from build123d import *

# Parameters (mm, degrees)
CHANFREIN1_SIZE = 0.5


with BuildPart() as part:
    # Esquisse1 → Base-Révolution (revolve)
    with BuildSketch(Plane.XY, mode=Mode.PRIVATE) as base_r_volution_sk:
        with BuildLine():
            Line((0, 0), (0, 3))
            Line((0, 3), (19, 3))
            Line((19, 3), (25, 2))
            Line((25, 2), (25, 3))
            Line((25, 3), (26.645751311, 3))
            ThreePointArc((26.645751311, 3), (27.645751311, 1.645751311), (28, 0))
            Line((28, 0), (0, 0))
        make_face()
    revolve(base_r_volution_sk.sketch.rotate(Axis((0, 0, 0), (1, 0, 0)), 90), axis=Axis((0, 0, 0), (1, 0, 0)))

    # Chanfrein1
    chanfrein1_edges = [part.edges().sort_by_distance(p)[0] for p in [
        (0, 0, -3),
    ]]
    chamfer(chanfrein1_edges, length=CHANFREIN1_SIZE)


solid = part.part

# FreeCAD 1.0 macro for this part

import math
import FreeCAD as App
import Part
import Sketcher
from FreeCAD import Vector
Q = App.Units.Quantity


def edges_at(feature, points):
    """Names of the edges that pass closest to the given points."""
    edges = feature.Shape.Edges
    near = lambda p: min(range(len(edges)), key=lambda i: edges[i].distToShape(Part.Vertex(*p))[0])
    return sorted({f"Edge{near(p) + 1}" for p in points})

doc = App.newDocument("Part")
body = doc.addObject("PartDesign::Body", "Body")

# Sketch on XY plane
sketch1 = body.newObject("Sketcher::SketchObject", "Sketch")
sketch1.AttachmentSupport = (doc.getObject("XY_Plane"), [""])
sketch1.MapMode = "FlatFace"
sketch1.addGeometry([
    Part.LineSegment(Vector(0, 3, 0), Vector(0, 0, 0)),  # 0
    Part.LineSegment(Vector(0, 0, 0), Vector(28, 0, 0)),  # 1
    Part.ArcOfCircle(Part.Circle(Vector(24, 0, 0), Vector(0, 0, 1), 4), math.radians(0), math.radians(48.590378)),  # 2
    Part.LineSegment(Vector(26.645751, 3, 0), Vector(25, 3, 0)),  # 3
    Part.LineSegment(Vector(25, 3, 0), Vector(25, 2, 0)),  # 4
    Part.LineSegment(Vector(25, 2, 0), Vector(19, 3, 0)),  # 5
    Part.LineSegment(Vector(19, 3, 0), Vector(0, 3, 0)),  # 6
], False)
sketch1.addConstraint([
    Sketcher.Constraint("Coincident", 0, 2, 1, 1),
    Sketcher.Constraint("Coincident", 1, 2, 2, 1),
    Sketcher.Constraint("Coincident", 2, 2, 3, 1),
    Sketcher.Constraint("Coincident", 3, 2, 4, 1),
    Sketcher.Constraint("Coincident", 4, 2, 5, 1),
    Sketcher.Constraint("Coincident", 5, 2, 6, 1),
    Sketcher.Constraint("Coincident", 6, 2, 0, 1),
    Sketcher.Constraint("Vertical", 0),
    Sketcher.Constraint("Horizontal", 1),
    Sketcher.Constraint("Horizontal", 3),
    Sketcher.Constraint("Vertical", 4),
    Sketcher.Constraint("Horizontal", 6),
    Sketcher.Constraint("Coincident", 0, 2, -1, 1),
    Sketcher.Constraint("PointOnObject", 2, 3, -1),
    Sketcher.Constraint("Horizontal", 3, 2, 5, 2),
    Sketcher.Constraint("Radius", 2, Q("4 mm")),
    Sketcher.Constraint("DistanceX", 1, 1, 1, 2, Q("28 mm")),
    Sketcher.Constraint("DistanceX", 6, 2, 6, 1, Q("19 mm")),
    Sketcher.Constraint("DistanceY", 0, 2, 0, 1, Q("3 mm")),
    Sketcher.Constraint("DistanceY", 4, 2, 4, 1, Q("1 mm")),
    Sketcher.Constraint("DistanceX", -1, 1, 3, 2, Q("25 mm")),
])
revolution = body.newObject("PartDesign::Revolution", "Revolution")
revolution.Profile = sketch1
revolution.ReferenceAxis = (sketch1, ["H_Axis"])
revolution.Angle = 360
doc.recompute()

chamfer = body.newObject("PartDesign::Chamfer", "Chamfer")
chamfer.Base = (revolution, edges_at(revolution, [(0, 0, -3)]))
chamfer.Size = 0.5

doc.recompute()
